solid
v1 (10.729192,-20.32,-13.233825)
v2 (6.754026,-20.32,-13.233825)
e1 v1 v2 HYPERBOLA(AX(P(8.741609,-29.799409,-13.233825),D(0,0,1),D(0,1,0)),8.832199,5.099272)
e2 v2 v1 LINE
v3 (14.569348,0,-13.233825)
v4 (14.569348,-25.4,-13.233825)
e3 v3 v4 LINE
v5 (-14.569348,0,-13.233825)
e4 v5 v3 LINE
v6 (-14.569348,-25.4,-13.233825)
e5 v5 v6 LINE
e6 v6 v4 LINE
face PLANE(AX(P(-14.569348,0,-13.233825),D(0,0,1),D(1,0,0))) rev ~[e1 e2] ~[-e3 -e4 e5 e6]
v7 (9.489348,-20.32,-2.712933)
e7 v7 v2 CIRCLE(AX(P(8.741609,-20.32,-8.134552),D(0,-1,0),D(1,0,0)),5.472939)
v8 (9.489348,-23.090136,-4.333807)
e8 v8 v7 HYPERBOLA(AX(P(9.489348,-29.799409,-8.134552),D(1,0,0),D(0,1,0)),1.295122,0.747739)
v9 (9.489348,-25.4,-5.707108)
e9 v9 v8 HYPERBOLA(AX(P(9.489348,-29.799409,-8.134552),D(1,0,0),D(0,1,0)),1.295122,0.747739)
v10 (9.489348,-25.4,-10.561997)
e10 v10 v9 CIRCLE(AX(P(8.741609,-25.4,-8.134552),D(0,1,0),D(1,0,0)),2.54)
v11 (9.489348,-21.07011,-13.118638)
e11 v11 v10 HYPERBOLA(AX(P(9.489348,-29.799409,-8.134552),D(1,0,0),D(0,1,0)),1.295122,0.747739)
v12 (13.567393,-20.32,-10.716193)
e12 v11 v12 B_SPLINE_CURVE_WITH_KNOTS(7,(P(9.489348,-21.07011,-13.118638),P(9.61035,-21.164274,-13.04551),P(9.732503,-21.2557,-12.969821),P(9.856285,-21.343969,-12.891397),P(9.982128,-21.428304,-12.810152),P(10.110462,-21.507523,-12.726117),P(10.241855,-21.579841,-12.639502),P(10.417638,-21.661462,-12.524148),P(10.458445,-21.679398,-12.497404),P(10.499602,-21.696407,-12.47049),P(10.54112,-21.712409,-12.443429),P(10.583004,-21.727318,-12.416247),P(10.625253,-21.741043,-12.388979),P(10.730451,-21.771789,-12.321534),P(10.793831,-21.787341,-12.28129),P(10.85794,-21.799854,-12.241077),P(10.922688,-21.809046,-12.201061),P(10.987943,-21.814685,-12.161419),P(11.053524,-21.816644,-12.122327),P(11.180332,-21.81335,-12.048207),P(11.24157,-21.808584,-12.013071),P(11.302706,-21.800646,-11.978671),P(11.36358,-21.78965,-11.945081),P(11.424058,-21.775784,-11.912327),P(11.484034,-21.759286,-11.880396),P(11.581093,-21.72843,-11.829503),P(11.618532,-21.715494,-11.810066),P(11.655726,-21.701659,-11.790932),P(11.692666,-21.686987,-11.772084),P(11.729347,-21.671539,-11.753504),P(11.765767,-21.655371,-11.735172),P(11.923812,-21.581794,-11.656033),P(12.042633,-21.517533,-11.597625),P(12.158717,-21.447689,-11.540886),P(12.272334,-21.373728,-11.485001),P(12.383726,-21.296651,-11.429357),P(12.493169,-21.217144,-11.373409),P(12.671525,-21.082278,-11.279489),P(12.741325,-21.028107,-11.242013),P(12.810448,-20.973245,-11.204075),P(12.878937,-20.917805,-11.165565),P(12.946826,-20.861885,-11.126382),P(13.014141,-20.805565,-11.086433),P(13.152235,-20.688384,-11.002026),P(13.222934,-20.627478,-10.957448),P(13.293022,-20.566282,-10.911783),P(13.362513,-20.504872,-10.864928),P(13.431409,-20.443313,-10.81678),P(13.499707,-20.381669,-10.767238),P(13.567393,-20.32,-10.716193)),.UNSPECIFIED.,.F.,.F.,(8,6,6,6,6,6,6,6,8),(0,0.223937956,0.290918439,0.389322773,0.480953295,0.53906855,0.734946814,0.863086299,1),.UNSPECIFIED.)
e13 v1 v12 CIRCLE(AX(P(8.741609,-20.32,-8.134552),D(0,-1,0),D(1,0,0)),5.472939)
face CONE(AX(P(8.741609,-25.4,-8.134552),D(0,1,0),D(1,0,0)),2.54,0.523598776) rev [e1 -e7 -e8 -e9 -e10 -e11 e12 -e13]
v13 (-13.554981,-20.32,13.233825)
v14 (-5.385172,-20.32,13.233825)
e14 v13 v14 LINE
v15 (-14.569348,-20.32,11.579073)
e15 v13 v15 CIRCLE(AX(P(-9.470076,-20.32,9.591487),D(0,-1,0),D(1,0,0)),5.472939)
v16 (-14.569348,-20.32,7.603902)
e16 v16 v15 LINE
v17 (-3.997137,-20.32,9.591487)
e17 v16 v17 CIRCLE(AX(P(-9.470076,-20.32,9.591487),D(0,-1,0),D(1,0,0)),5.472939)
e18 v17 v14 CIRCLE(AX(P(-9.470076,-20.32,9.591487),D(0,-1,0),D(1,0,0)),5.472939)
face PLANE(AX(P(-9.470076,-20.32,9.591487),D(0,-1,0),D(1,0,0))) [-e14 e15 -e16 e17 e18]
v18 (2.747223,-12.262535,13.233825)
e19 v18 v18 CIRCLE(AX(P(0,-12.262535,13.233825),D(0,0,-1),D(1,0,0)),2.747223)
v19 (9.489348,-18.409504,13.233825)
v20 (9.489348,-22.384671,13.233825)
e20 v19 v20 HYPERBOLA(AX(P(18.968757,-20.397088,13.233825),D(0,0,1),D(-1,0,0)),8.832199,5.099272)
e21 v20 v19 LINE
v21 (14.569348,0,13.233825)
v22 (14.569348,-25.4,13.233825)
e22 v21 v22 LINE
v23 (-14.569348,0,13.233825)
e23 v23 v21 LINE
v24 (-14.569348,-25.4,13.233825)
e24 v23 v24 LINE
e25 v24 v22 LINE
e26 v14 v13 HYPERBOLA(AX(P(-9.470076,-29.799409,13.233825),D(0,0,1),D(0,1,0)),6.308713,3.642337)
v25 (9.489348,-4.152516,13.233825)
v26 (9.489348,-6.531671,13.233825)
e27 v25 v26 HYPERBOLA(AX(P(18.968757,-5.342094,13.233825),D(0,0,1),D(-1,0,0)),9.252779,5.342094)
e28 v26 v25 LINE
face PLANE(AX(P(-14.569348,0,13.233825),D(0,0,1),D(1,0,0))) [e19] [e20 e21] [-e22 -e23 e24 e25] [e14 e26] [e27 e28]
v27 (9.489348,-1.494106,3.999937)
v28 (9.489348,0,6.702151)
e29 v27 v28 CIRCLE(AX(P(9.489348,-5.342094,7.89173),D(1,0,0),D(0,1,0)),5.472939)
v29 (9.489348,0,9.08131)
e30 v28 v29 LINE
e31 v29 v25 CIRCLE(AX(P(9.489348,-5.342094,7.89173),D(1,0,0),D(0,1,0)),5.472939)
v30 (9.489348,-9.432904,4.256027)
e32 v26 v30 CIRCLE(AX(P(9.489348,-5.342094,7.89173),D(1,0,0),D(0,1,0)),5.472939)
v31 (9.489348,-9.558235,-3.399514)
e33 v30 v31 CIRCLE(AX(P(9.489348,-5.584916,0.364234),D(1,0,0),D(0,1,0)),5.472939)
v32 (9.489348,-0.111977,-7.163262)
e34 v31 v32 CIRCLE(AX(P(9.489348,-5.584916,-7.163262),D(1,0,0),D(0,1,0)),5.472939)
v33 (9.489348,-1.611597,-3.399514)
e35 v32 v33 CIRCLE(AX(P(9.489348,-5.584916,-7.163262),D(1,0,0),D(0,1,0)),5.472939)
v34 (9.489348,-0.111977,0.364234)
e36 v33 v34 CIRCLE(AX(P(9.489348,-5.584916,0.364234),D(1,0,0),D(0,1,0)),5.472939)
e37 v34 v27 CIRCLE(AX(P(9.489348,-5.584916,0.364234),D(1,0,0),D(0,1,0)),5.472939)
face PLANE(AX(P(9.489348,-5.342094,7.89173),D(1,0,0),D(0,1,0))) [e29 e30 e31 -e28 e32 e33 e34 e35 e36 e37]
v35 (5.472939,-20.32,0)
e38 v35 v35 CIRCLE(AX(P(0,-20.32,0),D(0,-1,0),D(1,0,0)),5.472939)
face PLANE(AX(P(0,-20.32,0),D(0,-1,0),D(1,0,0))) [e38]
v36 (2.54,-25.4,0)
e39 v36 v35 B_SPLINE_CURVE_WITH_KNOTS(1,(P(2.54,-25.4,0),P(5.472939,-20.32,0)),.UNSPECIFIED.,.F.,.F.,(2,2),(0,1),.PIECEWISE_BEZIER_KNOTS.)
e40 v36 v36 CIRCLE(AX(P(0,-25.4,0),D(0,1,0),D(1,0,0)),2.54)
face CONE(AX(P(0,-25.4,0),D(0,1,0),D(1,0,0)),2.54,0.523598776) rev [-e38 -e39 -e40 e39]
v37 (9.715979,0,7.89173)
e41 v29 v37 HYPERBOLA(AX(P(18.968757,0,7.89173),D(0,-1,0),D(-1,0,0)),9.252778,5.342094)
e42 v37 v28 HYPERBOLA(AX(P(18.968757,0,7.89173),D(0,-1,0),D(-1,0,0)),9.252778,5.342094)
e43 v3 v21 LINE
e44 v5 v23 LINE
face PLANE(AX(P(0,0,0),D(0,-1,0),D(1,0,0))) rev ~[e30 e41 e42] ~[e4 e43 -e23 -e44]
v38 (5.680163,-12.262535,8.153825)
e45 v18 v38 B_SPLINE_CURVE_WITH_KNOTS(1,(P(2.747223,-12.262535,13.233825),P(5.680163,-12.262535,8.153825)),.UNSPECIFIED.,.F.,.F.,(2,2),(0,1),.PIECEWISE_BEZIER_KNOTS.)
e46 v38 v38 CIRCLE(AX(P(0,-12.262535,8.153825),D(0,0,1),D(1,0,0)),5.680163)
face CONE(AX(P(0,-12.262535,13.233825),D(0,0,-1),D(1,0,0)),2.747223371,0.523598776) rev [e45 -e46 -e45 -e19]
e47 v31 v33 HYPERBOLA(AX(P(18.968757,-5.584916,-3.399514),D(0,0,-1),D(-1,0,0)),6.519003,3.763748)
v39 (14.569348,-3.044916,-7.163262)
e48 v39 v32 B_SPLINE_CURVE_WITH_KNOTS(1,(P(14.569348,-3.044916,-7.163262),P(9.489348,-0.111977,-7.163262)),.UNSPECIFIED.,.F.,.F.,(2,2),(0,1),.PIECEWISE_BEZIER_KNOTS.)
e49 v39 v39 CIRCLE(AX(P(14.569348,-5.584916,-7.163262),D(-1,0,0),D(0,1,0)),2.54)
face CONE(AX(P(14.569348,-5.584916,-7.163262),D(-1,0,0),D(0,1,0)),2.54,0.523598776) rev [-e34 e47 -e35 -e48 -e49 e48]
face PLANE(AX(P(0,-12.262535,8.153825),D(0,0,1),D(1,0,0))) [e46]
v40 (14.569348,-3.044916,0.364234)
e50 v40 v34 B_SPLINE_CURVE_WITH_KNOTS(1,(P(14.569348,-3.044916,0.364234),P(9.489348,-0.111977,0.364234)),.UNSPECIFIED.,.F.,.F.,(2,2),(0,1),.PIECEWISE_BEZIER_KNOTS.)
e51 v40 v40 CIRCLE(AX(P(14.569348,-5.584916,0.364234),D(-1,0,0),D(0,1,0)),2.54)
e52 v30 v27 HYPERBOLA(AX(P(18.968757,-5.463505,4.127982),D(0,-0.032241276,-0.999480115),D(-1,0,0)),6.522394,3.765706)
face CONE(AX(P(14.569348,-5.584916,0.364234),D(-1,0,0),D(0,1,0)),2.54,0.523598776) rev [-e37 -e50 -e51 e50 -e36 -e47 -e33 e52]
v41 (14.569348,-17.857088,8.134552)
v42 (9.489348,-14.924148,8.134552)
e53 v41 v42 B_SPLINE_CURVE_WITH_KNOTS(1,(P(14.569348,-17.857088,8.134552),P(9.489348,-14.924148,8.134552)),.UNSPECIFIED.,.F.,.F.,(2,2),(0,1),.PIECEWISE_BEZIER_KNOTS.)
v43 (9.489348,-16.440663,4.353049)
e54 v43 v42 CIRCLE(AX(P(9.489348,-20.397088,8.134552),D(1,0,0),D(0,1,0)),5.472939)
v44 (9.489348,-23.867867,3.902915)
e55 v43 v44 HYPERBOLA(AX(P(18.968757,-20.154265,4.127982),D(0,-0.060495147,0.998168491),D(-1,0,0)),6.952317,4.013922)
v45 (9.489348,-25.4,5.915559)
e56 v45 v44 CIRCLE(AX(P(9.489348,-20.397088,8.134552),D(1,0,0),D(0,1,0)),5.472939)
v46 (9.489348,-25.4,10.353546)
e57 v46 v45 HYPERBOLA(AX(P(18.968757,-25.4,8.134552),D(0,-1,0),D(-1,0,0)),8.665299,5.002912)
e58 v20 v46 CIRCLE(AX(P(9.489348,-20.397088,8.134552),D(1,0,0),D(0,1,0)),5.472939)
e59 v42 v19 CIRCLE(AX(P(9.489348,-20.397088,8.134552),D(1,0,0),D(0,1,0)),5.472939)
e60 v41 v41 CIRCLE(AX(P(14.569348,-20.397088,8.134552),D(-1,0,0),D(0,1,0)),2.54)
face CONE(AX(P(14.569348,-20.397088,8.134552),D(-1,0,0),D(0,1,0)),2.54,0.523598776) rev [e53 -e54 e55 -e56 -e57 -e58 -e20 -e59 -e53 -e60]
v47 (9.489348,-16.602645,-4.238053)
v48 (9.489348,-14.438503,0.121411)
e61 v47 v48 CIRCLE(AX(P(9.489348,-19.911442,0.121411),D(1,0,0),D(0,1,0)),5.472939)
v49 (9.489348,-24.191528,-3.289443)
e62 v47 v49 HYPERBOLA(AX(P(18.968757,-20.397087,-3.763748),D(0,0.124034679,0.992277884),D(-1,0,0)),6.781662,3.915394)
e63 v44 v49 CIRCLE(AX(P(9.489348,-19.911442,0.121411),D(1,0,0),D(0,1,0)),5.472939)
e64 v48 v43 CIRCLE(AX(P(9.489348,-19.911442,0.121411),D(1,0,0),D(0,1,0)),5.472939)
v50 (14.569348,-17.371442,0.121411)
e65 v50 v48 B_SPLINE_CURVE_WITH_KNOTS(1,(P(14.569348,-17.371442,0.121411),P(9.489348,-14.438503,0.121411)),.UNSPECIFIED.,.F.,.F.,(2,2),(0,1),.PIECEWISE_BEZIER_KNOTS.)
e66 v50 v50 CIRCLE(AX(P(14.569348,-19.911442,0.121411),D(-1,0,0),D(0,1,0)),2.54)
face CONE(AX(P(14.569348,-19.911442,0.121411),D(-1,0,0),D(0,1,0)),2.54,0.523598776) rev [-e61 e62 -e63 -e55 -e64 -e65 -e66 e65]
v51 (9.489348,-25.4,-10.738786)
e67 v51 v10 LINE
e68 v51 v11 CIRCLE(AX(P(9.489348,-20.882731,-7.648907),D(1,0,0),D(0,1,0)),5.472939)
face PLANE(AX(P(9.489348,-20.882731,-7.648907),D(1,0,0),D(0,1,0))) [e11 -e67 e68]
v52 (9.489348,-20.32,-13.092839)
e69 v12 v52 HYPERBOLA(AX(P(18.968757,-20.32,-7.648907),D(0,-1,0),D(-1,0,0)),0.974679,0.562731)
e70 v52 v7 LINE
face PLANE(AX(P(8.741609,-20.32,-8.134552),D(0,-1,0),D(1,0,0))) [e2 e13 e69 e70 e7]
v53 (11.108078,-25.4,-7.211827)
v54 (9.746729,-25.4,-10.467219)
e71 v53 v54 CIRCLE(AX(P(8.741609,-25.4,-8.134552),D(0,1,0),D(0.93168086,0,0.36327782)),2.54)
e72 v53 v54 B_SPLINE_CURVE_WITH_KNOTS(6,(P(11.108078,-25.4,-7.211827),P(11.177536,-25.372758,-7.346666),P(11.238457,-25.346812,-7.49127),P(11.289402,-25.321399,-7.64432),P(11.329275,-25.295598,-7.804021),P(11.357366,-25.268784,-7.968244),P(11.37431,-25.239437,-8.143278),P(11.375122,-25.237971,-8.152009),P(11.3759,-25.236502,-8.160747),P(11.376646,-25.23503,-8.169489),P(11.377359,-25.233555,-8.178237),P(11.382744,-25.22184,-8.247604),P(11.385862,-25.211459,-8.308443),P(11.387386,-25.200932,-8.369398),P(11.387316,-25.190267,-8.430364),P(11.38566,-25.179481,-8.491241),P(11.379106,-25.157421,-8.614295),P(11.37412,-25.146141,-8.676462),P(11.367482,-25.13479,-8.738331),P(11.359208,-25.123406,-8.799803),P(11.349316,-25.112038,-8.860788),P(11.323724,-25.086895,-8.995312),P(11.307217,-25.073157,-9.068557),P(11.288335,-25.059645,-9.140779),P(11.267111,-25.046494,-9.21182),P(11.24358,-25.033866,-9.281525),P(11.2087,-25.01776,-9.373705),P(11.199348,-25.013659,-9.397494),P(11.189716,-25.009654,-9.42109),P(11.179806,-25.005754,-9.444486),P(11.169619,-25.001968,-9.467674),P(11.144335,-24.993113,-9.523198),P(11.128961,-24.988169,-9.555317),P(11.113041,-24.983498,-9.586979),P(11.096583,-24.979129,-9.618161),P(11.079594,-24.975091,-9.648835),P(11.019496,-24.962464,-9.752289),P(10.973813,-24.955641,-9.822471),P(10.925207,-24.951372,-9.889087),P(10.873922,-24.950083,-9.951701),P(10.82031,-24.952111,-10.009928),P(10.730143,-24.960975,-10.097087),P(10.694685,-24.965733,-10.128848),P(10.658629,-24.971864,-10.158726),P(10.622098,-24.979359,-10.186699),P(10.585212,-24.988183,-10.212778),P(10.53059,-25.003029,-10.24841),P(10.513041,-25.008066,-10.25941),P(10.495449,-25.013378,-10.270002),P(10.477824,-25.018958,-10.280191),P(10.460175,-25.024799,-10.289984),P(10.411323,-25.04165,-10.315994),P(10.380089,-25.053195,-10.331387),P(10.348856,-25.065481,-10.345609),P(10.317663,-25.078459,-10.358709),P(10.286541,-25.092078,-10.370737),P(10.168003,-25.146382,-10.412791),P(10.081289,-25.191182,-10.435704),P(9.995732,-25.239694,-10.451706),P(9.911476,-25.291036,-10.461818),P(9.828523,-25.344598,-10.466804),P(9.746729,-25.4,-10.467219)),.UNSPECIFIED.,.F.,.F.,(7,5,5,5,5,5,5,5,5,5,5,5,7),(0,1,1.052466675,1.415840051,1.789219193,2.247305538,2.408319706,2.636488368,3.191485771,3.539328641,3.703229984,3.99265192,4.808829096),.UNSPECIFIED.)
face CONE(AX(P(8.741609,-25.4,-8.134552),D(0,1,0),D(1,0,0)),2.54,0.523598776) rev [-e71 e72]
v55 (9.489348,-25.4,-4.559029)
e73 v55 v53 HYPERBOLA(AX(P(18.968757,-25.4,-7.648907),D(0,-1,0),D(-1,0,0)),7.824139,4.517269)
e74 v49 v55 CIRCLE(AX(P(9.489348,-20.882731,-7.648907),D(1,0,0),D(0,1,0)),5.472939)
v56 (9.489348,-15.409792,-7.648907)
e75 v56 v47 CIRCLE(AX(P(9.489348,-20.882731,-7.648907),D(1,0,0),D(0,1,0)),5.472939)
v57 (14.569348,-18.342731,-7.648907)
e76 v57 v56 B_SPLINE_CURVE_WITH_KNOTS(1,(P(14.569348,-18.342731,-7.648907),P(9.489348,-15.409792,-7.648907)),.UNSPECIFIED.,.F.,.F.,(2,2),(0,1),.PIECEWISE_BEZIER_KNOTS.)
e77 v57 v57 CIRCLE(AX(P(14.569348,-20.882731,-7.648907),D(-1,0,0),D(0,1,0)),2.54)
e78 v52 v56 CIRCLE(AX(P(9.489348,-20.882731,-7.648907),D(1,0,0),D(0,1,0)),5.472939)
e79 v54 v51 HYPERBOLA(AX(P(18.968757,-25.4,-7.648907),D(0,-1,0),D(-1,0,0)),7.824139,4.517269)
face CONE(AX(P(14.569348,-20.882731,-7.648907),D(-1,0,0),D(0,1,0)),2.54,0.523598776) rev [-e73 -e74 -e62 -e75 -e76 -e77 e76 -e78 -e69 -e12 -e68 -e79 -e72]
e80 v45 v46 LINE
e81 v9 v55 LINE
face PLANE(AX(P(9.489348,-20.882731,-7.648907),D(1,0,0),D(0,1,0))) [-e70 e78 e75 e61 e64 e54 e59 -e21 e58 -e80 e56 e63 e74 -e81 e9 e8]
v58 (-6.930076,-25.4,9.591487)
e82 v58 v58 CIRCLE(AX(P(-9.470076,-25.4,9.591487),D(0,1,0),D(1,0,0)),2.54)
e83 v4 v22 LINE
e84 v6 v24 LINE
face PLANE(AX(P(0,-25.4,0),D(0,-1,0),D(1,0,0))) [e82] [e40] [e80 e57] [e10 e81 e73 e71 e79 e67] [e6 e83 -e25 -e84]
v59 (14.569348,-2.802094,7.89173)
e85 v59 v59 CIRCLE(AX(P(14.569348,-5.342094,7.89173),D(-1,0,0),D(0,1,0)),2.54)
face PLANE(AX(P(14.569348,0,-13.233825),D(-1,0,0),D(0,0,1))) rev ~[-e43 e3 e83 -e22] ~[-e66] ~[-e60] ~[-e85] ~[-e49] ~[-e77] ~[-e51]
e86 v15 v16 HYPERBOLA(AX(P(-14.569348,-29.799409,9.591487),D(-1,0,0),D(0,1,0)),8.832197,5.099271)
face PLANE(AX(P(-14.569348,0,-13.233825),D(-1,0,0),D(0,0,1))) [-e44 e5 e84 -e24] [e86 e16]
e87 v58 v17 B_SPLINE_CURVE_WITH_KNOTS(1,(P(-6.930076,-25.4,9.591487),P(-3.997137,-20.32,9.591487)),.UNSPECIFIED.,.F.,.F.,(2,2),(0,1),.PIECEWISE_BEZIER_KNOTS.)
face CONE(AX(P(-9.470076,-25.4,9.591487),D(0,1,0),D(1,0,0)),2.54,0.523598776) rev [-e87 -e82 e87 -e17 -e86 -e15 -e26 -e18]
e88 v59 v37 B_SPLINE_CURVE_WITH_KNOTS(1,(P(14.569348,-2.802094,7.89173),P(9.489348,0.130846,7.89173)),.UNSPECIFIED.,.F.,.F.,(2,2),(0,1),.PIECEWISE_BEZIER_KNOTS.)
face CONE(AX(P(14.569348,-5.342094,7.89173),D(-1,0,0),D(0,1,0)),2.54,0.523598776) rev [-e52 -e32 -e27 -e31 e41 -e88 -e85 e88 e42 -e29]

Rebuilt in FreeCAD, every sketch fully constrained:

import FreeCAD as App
import Part
import Sketcher
from FreeCAD import Vector
Q = App.Units.Quantity

doc = App.newDocument("Part")
body = doc.addObject("PartDesign::Body", "Body")

# Sketch on XZ plane
sketch1 = doc.addObject("Sketcher::SketchObject", "Sketch")
body.addObject(sketch1)
sketch1.AttachmentSupport = (doc.XZ_Plane, [""])
sketch1.MapMode = "FlatFace"
sketch1.addGeometry([
    Part.LineSegment(Vector(-15, 13, 0), Vector(-15, -13, 0)),
    Part.LineSegment(Vector(-15, -13, 0), Vector(15, -13, 0)),
    Part.LineSegment(Vector(15, -13, 0), Vector(15, 13, 0)),
    Part.LineSegment(Vector(15, 13, 0), Vector(-15, 13, 0)),
], False)
sketch1.addConstraint([
    Sketcher.Constraint("Coincident", 0, 2, 1, 1),
    Sketcher.Constraint("Coincident", 1, 2, 2, 1),
    Sketcher.Constraint("Coincident", 2, 2, 3, 1),
    Sketcher.Constraint("Coincident", 3, 2, 0, 1),
    Sketcher.Constraint("Vertical", 0),
    Sketcher.Constraint("Horizontal", 1),
    Sketcher.Constraint("Vertical", 2),
    Sketcher.Constraint("Horizontal", 3),
    Sketcher.Constraint("Symmetric", 0, 2, 2, 2, -1, 1),
    Sketcher.Constraint("DistanceY", 0, 2, 0, 1, Q("26.467649 mm")),
    Sketcher.Constraint("DistanceX", 1, 1, 1, 2, Q("29.138695 mm")),
])
pad1 = doc.addObject("PartDesign::Pad", "Pad")
body.addObject(pad1)
pad1.Profile = sketch1
pad1.Length = Q("1 in")

# Sketch on XY plane
sketch2 = doc.addObject("Sketcher::SketchObject", "Sketch001")
body.addObject(sketch2)
sketch2.AttachmentSupport = (doc.XY_Plane, [""])
sketch2.MapMode = "FlatFace"
sketch2.AttachmentOffset = App.Placement(Vector(0, 0, 13.233825), App.Rotation())
sketch2.addGeometry(Part.Circle(Vector(0, -12.3, 0), Vector(0, 0, 1), 2.7), False)
sketch2.addConstraint([
    Sketcher.Constraint("PointOnObject", 0, 3, -2),
    Sketcher.Constraint("Diameter", 0, Q("5.494447 mm")),
    Sketcher.Constraint("DistanceY", 0, 3, -1, 1, Q("12.262535 mm")),
])
pocket1 = doc.addObject("PartDesign::Pocket", "Pocket")
body.addObject(pocket1)
pocket1.Profile = sketch2
pocket1.Length = Q("0.2 in")
pocket1.TaperAngle = 30

# Sketch on XZ plane
sketch3 = doc.addObject("Sketcher::SketchObject", "Sketch002")
body.addObject(sketch3)
sketch3.AttachmentSupport = (doc.XZ_Plane, [""])
sketch3.MapMode = "FlatFace"
sketch3.AttachmentOffset = App.Placement(Vector(0, 0, 1 * 25.4), App.Rotation())
sketch3.addGeometry([
    Part.Circle(Vector(8.7, -8.1, 0), Vector(0, 0, 1), 2.5),
    Part.Circle(Vector(0, 0, 0), Vector(0, 0, 1), 2.5),
    Part.Circle(Vector(-9.5, 9.6, 0), Vector(0, 0, 1), 2.5),
], False)
sketch3.addConstraint([
    Sketcher.Constraint("Coincident", 1, 3, -1, 1),
    Sketcher.Constraint("Equal", 0, 1),
    Sketcher.Constraint("Equal", 1, 2),
    Sketcher.Constraint("Diameter", 0, Q("0.2 in")),
    Sketcher.Constraint("DistanceX", -1, 1, 0, 3, Q("8.741609 mm")),
    Sketcher.Constraint("DistanceY", 0, 3, 2, 3, Q("17.72604 mm")),
    Sketcher.Constraint("DistanceY", 0, 3, -1, 1, Q("8.134552 mm")),
    Sketcher.Constraint("DistanceX", 2, 3, -1, 1, Q("9.470076 mm")),
])
pocket2 = doc.addObject("PartDesign::Pocket", "Pocket001")
body.addObject(pocket2)
pocket2.Profile = sketch3
pocket2.Length = Q("0.2 in")
pocket2.TaperAngle = 30

# Sketch on YZ plane
sketch4 = doc.addObject("Sketcher::SketchObject", "Sketch003")
body.addObject(sketch4)
sketch4.AttachmentSupport = (doc.YZ_Plane, [""])
sketch4.MapMode = "FlatFace"
sketch4.AttachmentOffset = App.Placement(Vector(0, 0, 14.569348), App.Rotation())
sketch4.addGeometry([
    Part.Circle(Vector(-20.4, 8.1, 0), Vector(0, 0, 1), 2.5),  # 0
    Part.Circle(Vector(-19.9, 0.1, 0), Vector(0, 0, 1), 2.5),  # 1
    Part.Circle(Vector(-20.9, -7.6, 0), Vector(0, 0, 1), 2.5),  # 2
    Part.Circle(Vector(-5.6, -7.2, 0), Vector(0, 0, 1), 2.5),  # 3
    Part.Circle(Vector(-5.6, 0.4, 0), Vector(0, 0, 1), 2.5),  # 4
    Part.Circle(Vector(-5.3, 7.9, 0), Vector(0, 0, 1), 2.5),  # 5
], False)
sketch4.addConstraint([
    Sketcher.Constraint("Equal", 0, 1),
    Sketcher.Constraint("Equal", 1, 2),
    Sketcher.Constraint("Equal", 2, 3),
    Sketcher.Constraint("Equal", 3, 4),
    Sketcher.Constraint("Equal", 4, 5),
    Sketcher.Constraint("Vertical", 3, 3, 4, 3),
    Sketcher.Constraint("Diameter", 0, Q("0.2 in")),
    Sketcher.Constraint("DistanceX", 1, 3, -1, 1, Q("19.911442 mm")),
    Sketcher.Constraint("DistanceY", -1, 1, 1, 3, Q("0.121411 mm")),
    Sketcher.Constraint("DistanceX", 2, 3, -1, 1, Q("20.882731 mm")),
    Sketcher.Constraint("DistanceY", -1, 1, 5, 3, Q("7.89173 mm")),
    Sketcher.Constraint("DistanceY", 1, 3, 0, 3, Q("8.013141 mm")),
    Sketcher.Constraint("DistanceY", 2, 3, 1, 3, Q("7.770318 mm")),
    Sketcher.Constraint("DistanceX", 0, 3, 3, 3, Q("14.812171 mm")),
    Sketcher.Constraint("DistanceY", 4, 3, 0, 3, Q("7.770319 mm")),
    Sketcher.Constraint("DistanceX", 1, 3, 5, 3, Q("14.569348 mm")),
    Sketcher.Constraint("DistanceX", 0, 3, -1, 1, Q("20.397088 mm")),
    Sketcher.Constraint("DistanceY", 3, 3, -1, 1, Q("7.163262 mm")),
])
pocket3 = doc.addObject("PartDesign::Pocket", "Pocket002")
body.addObject(pocket3)
pocket3.Profile = sketch4
pocket3.Length = Q("0.2 in")
pocket3.TaperAngle = 30

doc.recompute()
